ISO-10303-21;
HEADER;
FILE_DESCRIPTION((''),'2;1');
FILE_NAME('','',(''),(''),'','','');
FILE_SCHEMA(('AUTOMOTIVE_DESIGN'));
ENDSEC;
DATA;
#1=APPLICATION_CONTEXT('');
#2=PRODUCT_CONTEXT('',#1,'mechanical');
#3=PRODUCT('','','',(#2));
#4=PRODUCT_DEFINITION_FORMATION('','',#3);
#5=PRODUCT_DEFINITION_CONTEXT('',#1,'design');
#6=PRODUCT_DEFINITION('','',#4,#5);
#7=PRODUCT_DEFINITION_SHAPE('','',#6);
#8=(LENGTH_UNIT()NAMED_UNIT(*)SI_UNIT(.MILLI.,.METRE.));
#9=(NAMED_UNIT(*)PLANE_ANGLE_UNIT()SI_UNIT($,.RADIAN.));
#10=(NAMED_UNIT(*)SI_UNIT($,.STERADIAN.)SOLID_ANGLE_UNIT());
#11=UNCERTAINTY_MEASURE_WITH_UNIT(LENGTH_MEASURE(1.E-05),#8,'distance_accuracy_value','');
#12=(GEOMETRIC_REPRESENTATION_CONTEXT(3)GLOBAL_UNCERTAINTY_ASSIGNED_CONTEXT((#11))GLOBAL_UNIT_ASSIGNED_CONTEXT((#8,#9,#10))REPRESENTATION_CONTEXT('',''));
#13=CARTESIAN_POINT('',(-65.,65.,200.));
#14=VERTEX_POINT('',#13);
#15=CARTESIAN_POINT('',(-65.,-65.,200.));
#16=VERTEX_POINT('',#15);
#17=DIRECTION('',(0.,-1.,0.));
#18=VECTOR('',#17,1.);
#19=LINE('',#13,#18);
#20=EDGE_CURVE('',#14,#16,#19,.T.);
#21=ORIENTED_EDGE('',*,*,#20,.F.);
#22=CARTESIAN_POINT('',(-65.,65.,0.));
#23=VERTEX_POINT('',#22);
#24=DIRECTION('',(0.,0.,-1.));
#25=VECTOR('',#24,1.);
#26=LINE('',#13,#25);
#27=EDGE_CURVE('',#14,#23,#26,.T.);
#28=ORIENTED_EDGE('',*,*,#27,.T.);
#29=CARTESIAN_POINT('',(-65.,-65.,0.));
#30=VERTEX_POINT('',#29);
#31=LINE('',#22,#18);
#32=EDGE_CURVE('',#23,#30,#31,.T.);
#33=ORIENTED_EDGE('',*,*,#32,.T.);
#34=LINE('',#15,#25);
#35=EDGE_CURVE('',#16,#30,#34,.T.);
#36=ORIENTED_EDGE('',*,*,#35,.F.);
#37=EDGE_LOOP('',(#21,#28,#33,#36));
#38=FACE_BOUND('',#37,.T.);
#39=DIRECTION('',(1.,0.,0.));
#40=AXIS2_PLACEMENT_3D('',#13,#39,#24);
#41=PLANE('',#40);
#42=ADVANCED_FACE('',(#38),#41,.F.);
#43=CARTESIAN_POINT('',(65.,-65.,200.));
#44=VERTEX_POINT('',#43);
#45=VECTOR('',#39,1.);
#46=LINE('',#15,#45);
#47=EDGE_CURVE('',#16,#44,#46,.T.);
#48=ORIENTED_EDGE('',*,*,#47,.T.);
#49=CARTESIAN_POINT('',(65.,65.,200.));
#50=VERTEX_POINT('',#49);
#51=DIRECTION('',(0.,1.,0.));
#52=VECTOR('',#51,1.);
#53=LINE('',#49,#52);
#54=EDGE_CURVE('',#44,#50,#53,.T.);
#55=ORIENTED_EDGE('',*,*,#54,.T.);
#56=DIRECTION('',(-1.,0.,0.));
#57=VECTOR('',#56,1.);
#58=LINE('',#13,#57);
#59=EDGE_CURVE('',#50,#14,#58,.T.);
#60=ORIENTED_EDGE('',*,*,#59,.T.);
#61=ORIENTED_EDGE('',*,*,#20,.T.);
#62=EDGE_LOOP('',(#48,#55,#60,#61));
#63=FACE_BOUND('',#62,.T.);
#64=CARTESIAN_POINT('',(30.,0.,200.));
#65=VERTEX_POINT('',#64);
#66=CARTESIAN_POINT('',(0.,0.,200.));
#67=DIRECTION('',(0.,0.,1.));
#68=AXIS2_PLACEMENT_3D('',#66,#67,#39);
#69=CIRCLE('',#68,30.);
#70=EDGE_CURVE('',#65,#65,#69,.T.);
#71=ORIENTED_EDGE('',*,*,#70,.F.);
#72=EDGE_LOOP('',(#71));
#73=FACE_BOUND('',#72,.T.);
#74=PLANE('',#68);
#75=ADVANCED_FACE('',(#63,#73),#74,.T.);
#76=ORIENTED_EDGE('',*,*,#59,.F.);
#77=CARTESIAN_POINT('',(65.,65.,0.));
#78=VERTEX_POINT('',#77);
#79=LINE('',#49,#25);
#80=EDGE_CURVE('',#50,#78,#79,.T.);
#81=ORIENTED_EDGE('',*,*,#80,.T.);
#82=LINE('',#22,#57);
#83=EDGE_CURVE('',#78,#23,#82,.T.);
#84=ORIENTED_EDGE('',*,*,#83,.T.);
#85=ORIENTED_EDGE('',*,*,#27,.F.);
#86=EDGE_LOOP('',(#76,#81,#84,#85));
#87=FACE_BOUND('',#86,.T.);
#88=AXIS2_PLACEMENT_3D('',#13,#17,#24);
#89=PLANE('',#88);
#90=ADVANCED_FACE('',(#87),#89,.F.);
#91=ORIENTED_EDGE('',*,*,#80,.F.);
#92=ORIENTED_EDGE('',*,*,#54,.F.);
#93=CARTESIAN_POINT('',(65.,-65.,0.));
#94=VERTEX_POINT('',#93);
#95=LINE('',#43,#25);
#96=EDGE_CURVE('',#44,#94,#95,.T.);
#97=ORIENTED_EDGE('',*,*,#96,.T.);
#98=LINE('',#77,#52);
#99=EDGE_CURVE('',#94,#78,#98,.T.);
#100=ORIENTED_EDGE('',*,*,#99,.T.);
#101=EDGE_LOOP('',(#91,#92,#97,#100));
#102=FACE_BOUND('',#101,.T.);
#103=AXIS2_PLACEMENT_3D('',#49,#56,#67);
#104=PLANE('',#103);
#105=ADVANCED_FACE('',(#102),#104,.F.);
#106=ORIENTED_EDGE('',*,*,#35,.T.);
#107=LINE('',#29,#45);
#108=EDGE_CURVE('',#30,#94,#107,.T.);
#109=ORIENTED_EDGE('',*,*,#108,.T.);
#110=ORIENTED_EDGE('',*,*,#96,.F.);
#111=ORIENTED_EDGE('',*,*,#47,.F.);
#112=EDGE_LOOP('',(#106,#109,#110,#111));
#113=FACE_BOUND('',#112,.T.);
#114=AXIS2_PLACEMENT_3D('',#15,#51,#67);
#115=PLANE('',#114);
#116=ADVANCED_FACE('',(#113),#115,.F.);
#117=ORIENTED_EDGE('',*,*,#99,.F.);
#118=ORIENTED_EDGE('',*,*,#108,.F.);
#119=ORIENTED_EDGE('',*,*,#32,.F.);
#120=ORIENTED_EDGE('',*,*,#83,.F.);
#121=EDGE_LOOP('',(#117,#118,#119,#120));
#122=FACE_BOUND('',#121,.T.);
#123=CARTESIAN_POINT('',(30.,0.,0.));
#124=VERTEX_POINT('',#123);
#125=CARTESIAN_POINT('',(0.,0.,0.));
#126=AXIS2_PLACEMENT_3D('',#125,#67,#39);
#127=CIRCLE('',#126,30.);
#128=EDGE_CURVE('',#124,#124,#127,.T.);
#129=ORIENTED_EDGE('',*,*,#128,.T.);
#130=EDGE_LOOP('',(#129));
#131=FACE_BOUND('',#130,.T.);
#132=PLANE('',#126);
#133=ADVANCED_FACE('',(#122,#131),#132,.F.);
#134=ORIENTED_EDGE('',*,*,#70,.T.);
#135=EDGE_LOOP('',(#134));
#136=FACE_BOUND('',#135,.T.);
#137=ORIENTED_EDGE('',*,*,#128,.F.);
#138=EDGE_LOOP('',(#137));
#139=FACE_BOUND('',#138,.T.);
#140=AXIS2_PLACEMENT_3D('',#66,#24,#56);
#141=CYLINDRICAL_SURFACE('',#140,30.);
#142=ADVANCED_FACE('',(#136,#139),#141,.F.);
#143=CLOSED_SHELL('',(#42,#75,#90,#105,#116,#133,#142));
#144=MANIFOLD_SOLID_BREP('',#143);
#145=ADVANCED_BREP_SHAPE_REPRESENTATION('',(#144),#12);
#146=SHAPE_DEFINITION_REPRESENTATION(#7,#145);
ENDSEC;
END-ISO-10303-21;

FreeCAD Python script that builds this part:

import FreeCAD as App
import Part
import Sketcher
from FreeCAD import Vector


def add_polygon(sketch, points):
    """Adds a closed chain of lines whose ends are joined by coincident constraints."""
    first, n = sketch.GeometryCount, len(points)
    for a, b in zip(points, points[1:] + points[:1]):
        sketch.addGeometry(Part.LineSegment(App.Vector(*a, 0), App.Vector(*b, 0)), False)
    for i in range(n):
        sketch.addConstraint(Sketcher.Constraint("Coincident", first + i, 2, first + (i + 1) % n, 1))

doc = App.newDocument("Part")
params = doc.addObject("Spreadsheet::Sheet", "Params")
for row, (alias, value) in enumerate([
    ("sketch1_diameter", "60 mm"),
    ("sketch1_width", "130 mm"),
    ("pad1_length", "200 mm"),
], start=1):
    params.set(f"A{row}", alias)
    params.set(f"B{row}", "=" + value)
    params.setAlias(f"B{row}", alias)

body = doc.addObject("PartDesign::Body", "Body")

# Sketch on XY plane
sketch1 = body.newObject("Sketcher::SketchObject", "Sketch")
sketch1.AttachmentSupport = (doc.getObject("XY_Plane"), [""])
sketch1.MapMode = "FlatFace"
add_polygon(sketch1, [(-65, 65), (-65, -65), (65, -65), (65, 65)])  # lines 0-3
sketch1.addGeometry(Part.Circle(Vector(0, 0, 0), Vector(0, 0, 1), 30), False)  # 4
sketch1.addConstraint([
    Sketcher.Constraint("Vertical", 0),
    Sketcher.Constraint("Horizontal", 1),
    Sketcher.Constraint("Vertical", 2),
    Sketcher.Constraint("Horizontal", 3),
    Sketcher.Constraint("Coincident", 4, 3, -1, 1),
    Sketcher.Constraint("Symmetric", 0, 2, 2, 2, -1, 1),
    Sketcher.Constraint("Equal", 3, 0),
    Sketcher.Constraint("Diameter", 4, 60.0),
    Sketcher.Constraint("DistanceX", 1, 1, 1, 2, 130.0),
])
sketch1.setExpression("Constraints[11]", "Params.sketch1_diameter")
sketch1.setExpression("Constraints[12]", "Params.sketch1_width")
pad1 = body.newObject("PartDesign::Pad", "Pad")
pad1.Profile = sketch1
pad1.setExpression("Length", "Params.pad1_length")

doc.recompute()
